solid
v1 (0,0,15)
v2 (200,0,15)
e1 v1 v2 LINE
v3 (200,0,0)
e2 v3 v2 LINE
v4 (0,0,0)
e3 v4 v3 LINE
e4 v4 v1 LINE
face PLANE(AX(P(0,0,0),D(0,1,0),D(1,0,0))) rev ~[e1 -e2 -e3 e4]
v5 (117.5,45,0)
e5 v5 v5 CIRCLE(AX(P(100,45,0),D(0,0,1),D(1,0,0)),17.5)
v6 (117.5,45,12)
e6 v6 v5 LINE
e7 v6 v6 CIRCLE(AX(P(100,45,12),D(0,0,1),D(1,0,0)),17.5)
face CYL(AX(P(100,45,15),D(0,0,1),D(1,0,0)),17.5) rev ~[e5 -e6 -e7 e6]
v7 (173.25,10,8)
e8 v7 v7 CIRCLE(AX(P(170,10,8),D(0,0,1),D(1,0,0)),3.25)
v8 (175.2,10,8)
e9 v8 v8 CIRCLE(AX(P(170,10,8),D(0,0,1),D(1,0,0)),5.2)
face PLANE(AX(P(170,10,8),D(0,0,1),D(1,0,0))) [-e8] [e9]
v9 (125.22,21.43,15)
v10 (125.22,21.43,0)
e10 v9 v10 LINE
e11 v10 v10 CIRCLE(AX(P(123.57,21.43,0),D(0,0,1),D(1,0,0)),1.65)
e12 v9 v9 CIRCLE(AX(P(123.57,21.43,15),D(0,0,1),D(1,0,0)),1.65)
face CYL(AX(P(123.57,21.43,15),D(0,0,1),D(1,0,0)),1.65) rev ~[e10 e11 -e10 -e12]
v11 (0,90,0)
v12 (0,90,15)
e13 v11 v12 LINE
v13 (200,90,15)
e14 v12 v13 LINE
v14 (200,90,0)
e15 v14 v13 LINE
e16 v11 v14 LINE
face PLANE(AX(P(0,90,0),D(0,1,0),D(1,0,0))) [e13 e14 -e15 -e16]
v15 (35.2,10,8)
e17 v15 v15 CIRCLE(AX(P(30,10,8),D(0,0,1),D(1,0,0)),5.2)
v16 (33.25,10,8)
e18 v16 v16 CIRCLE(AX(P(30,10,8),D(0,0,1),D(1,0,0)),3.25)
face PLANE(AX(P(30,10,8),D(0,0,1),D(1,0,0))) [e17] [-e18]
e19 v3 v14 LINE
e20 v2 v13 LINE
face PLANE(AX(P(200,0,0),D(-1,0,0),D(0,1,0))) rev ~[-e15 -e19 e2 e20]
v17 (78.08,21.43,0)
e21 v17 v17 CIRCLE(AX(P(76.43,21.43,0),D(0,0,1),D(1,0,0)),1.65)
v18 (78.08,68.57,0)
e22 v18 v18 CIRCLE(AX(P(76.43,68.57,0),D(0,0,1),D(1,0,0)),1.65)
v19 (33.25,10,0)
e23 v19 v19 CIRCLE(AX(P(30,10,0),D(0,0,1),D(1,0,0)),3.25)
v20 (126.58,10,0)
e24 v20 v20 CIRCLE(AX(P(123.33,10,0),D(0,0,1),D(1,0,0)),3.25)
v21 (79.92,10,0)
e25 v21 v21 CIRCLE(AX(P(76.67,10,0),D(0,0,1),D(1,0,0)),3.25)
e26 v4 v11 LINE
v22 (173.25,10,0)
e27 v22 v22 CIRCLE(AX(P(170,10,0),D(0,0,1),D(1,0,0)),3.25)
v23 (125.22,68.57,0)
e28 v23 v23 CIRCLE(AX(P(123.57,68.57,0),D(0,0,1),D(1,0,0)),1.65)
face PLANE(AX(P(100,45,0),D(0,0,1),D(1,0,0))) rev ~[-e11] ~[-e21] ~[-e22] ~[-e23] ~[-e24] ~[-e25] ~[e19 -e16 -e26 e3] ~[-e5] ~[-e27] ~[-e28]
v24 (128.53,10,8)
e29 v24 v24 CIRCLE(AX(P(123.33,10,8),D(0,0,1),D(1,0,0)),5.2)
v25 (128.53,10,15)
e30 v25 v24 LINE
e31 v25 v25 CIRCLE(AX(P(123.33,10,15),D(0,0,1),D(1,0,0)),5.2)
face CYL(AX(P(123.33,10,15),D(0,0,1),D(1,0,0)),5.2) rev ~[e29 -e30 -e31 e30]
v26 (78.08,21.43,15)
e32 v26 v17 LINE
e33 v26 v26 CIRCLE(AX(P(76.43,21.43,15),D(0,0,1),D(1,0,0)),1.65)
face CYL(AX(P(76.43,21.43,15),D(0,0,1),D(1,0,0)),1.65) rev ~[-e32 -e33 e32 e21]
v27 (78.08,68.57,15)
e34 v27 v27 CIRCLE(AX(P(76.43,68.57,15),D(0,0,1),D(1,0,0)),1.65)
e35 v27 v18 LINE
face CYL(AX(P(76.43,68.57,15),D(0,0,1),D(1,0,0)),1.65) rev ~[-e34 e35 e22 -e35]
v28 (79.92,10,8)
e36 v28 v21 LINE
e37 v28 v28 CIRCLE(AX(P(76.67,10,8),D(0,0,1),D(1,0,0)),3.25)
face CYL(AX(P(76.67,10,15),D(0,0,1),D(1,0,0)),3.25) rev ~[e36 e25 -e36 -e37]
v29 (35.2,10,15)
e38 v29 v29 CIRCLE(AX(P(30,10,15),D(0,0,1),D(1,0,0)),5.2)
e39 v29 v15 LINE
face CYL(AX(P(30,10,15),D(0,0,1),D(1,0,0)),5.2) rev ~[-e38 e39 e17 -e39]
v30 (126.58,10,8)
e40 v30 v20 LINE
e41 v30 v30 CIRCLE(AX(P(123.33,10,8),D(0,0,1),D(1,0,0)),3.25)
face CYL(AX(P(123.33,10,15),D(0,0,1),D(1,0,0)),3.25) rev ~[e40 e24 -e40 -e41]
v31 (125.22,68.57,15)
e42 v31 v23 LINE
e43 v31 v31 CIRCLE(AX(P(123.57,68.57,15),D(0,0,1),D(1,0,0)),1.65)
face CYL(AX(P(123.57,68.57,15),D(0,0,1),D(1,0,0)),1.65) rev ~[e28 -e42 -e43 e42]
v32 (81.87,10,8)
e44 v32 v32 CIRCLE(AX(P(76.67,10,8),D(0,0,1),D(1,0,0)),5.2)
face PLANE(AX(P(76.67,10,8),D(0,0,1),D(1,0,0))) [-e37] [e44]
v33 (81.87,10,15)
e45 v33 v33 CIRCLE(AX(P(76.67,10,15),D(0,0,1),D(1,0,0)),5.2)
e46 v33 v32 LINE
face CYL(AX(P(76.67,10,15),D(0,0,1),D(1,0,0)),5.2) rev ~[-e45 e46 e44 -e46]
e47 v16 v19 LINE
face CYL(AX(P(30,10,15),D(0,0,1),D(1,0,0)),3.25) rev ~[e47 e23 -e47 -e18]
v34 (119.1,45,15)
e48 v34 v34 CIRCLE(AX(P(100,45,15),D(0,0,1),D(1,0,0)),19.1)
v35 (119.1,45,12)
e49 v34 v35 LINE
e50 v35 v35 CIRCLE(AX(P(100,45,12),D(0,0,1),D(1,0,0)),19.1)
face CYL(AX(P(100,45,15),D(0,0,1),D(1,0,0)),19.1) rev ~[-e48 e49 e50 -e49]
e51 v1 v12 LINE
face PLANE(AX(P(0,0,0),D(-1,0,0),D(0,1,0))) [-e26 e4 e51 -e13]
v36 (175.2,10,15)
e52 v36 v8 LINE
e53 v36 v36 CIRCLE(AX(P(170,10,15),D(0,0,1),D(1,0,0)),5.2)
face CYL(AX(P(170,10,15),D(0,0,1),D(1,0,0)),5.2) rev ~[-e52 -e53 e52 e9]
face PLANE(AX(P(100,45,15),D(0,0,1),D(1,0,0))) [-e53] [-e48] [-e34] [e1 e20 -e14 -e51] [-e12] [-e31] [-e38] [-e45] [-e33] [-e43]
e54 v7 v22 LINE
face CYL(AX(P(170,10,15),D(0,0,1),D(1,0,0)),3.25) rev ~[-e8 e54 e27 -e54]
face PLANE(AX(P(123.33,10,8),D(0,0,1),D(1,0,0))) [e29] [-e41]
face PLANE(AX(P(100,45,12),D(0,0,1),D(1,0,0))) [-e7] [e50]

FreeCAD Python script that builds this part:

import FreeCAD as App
import Part
import Sketcher
from FreeCAD import Vector

doc = App.newDocument("Part")
body = doc.addObject("PartDesign::Body", "Body")

sketch1 = doc.addObject("Sketcher::SketchObject", "Sketch")
body.addObject(sketch1)
sketch1.AttachmentSupport = (doc.XY_Plane, [""])
sketch1.MapMode = "FlatFace"
sketch1.addGeometry(Part.LineSegment(Vector(0, 90, 0), Vector(0, 0, 0)), False)
sketch1.addGeometry(Part.LineSegment(Vector(0, 0, 0), Vector(200, 0, 0)), False)
sketch1.addGeometry(Part.LineSegment(Vector(200, 0, 0), Vector(200, 90, 0)), False)
sketch1.addGeometry(Part.LineSegment(Vector(200, 90, 0), Vector(0, 90, 0)), False)
sketch1.addConstraint(Sketcher.Constraint("Coincident", 0, 2, 1, 1))
sketch1.addConstraint(Sketcher.Constraint("Coincident", 1, 2, 2, 1))
sketch1.addConstraint(Sketcher.Constraint("Coincident", 2, 2, 3, 1))
sketch1.addConstraint(Sketcher.Constraint("Coincident", 3, 2, 0, 1))
sketch1.addConstraint(Sketcher.Constraint("Vertical", 0))
sketch1.addConstraint(Sketcher.Constraint("Horizontal", 1))
sketch1.addConstraint(Sketcher.Constraint("Vertical", 2))
sketch1.addConstraint(Sketcher.Constraint("Horizontal", 3))
sketch1.addConstraint(Sketcher.Constraint("Coincident", 0, 2, -1, 1))
sketch1.addConstraint(Sketcher.Constraint("DistanceX", 1, 1, 1, 2, 200.0))
sketch1.addConstraint(Sketcher.Constraint("DistanceY", 0, 2, 0, 1, 90.0))
pad1 = doc.addObject("PartDesign::Pad", "Pad")
body.addObject(pad1)
pad1.Profile = sketch1
pad1.Length = 15

sketch2 = doc.addObject("Sketcher::SketchObject", "Sketch001")
body.addObject(sketch2)
sketch2.AttachmentSupport = (doc.XY_Plane, [""])
sketch2.MapMode = "FlatFace"
sketch2.AttachmentOffset = App.Placement(Vector(0, 0, 15), App.Rotation())
sketch2.addGeometry(Part.Circle(Vector(100, 45, 0), Vector(0, 0, 1), 17.5), False)
sketch2.addGeometry(Part.Circle(Vector(30, 10, 0), Vector(0, 0, 1), 3.2), False)
sketch2.addGeometry(Part.Circle(Vector(76.7, 10, 0), Vector(0, 0, 1), 3.2), False)
sketch2.addGeometry(Part.Circle(Vector(123.3, 10, 0), Vector(0, 0, 1), 3.2), False)
sketch2.addGeometry(Part.Circle(Vector(170, 10, 0), Vector(0, 0, 1), 3.2), False)
sketch2.addConstraint(Sketcher.Constraint("Equal", 1, 2))
sketch2.addConstraint(Sketcher.Constraint("Equal", 2, 3))
sketch2.addConstraint(Sketcher.Constraint("Equal", 3, 4))
sketch2.addConstraint(Sketcher.Constraint("Horizontal", 1, 3, 2, 3))
sketch2.addConstraint(Sketcher.Constraint("Horizontal", 2, 3, 3, 3))
sketch2.addConstraint(Sketcher.Constraint("Horizontal", 3, 3, 4, 3))
sketch2.addConstraint(Sketcher.Constraint("Diameter", 0, 35.0))
sketch2.addConstraint(Sketcher.Constraint("Diameter", 1, 6.5))
sketch2.addConstraint(Sketcher.Constraint("DistanceX", -1, 1, 0, 3, 100.0))
sketch2.addConstraint(Sketcher.Constraint("DistanceY", -1, 1, 0, 3, 45.0))
sketch2.addConstraint(Sketcher.Constraint("DistanceX", -1, 1, 1, 3, 30.0))
sketch2.addConstraint(Sketcher.Constraint("DistanceY", -1, 1, 1, 3, 10.0))
sketch2.addConstraint(Sketcher.Constraint("DistanceX", -1, 1, 4, 3, 170.0))
sketch2.addConstraint(Sketcher.Constraint("DistanceX", -1, 1, 2, 3, 76.67))
sketch2.addConstraint(Sketcher.Constraint("DistanceX", -1, 1, 3, 3, 123.33))
pocket1 = doc.addObject("PartDesign::Pocket", "Pocket")
body.addObject(pocket1)
pocket1.Profile = sketch2
pocket1.Length = 15

sketch3 = doc.addObject("Sketcher::SketchObject", "Sketch002")
body.addObject(sketch3)
sketch3.AttachmentSupport = (doc.XY_Plane, [""])
sketch3.MapMode = "FlatFace"
sketch3.AttachmentOffset = App.Placement(Vector(0, 0, 15), App.Rotation())
sketch3.addGeometry(Part.Circle(Vector(76.4, 68.6, 0), Vector(0, 0, 1), 1.6), False)
sketch3.addGeometry(Part.Circle(Vector(123.6, 68.6, 0), Vector(0, 0, 1), 1.6), False)
sketch3.addGeometry(Part.Circle(Vector(76.4, 21.4, 0), Vector(0, 0, 1), 1.6), False)
sketch3.addGeometry(Part.Circle(Vector(123.6, 21.4, 0), Vector(0, 0, 1), 1.6), False)
sketch3.addConstraint(Sketcher.Constraint("Equal", 0, 1))
sketch3.addConstraint(Sketcher.Constraint("Equal", 1, 2))
sketch3.addConstraint(Sketcher.Constraint("Equal", 2, 3))
sketch3.addConstraint(Sketcher.Constraint("Horizontal", 0, 3, 1, 3))
sketch3.addConstraint(Sketcher.Constraint("Horizontal", 2, 3, 3, 3))
sketch3.addConstraint(Sketcher.Constraint("Vertical", 0, 3, 2, 3))
sketch3.addConstraint(Sketcher.Constraint("Vertical", 1, 3, 3, 3))
sketch3.addConstraint(Sketcher.Constraint("Diameter", 0, 3.3))
sketch3.addConstraint(Sketcher.Constraint("DistanceX", -1, 1, 0, 3, 76.43))
sketch3.addConstraint(Sketcher.Constraint("DistanceY", -1, 1, 0, 3, 68.57))
sketch3.addConstraint(Sketcher.Constraint("DistanceX", -1, 1, 1, 3, 123.57))
sketch3.addConstraint(Sketcher.Constraint("DistanceY", -1, 1, 2, 3, 21.43))
pocket2 = doc.addObject("PartDesign::Pocket", "Pocket001")
body.addObject(pocket2)
pocket2.Profile = sketch3
pocket2.Length = 15

sketch4 = doc.addObject("Sketcher::SketchObject", "Sketch003")
body.addObject(sketch4)
sketch4.AttachmentSupport = (doc.XY_Plane, [""])
sketch4.MapMode = "FlatFace"
sketch4.AttachmentOffset = App.Placement(Vector(0, 0, 15), App.Rotation())
sketch4.addGeometry(Part.Circle(Vector(100, 45, 0), Vector(0, 0, 1), 19), False)
sketch4.addConstraint(Sketcher.Constraint("Diameter", 0, 38.2))
sketch4.addConstraint(Sketcher.Constraint("DistanceX", -1, 1, 0, 3, 100.0))
sketch4.addConstraint(Sketcher.Constraint("DistanceY", -1, 1, 0, 3, 45.0))
pocket3 = doc.addObject("PartDesign::Pocket", "Pocket002")
body.addObject(pocket3)
pocket3.Profile = sketch4
pocket3.Length = 3

sketch5 = doc.addObject("Sketcher::SketchObject", "Sketch004")
body.addObject(sketch5)
sketch5.AttachmentSupport = (doc.XY_Plane, [""])
sketch5.MapMode = "FlatFace"
sketch5.AttachmentOffset = App.Placement(Vector(0, 0, 15), App.Rotation())
sketch5.addGeometry(Part.Circle(Vector(30, 10, 0), Vector(0, 0, 1), 5), False)
sketch5.addGeometry(Part.Circle(Vector(77, 10, 0), Vector(0, 0, 1), 5), False)
sketch5.addGeometry(Part.Circle(Vector(123, 10, 0), Vector(0, 0, 1), 5), False)
sketch5.addGeometry(Part.Circle(Vector(170, 10, 0), Vector(0, 0, 1), 5), False)
sketch5.addConstraint(Sketcher.Constraint("Equal", 0, 1))
sketch5.addConstraint(Sketcher.Constraint("Equal", 1, 2))
sketch5.addConstraint(Sketcher.Constraint("Equal", 2, 3))
sketch5.addConstraint(Sketcher.Constraint("Horizontal", 0, 3, 1, 3))
sketch5.addConstraint(Sketcher.Constraint("Horizontal", 1, 3, 2, 3))
sketch5.addConstraint(Sketcher.Constraint("Horizontal", 2, 3, 3, 3))
sketch5.addConstraint(Sketcher.Constraint("Diameter", 0, 10.4))
sketch5.addConstraint(Sketcher.Constraint("DistanceX", -1, 1, 0, 3, 30.0))
sketch5.addConstraint(Sketcher.Constraint("DistanceY", -1, 1, 0, 3, 10.0))
sketch5.addConstraint(Sketcher.Constraint("DistanceX", -1, 1, 3, 3, 170.0))
sketch5.addConstraint(Sketcher.Constraint("DistanceX", -1, 1, 1, 3, 76.67))
sketch5.addConstraint(Sketcher.Constraint("DistanceX", -1, 1, 2, 3, 123.33))
pocket4 = doc.addObject("PartDesign::Pocket", "Pocket003")
body.addObject(pocket4)
pocket4.Profile = sketch5
pocket4.Length = 7

doc.recompute()
